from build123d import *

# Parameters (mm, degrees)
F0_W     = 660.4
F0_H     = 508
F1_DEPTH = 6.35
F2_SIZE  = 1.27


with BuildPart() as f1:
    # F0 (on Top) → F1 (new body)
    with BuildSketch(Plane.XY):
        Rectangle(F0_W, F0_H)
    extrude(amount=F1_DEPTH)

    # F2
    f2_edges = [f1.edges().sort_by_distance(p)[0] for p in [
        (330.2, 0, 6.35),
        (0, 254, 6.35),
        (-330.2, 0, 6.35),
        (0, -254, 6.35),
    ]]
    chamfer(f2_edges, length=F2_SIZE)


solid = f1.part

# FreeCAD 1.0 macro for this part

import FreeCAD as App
import Part
import Sketcher
Q = App.Units.Quantity


def edges_at(feature, points):
    """Names of the edges that pass closest to the given points."""
    edges = feature.Shape.Edges
    near = lambda p: min(range(len(edges)), key=lambda i: edges[i].distToShape(Part.Vertex(*p))[0])
    return sorted({f"Edge{near(p) + 1}" for p in points})

doc = App.newDocument("Part")
body = doc.addObject("PartDesign::Body", "Body")

# Sketch on XY plane
sketch1 = doc.addObject("Sketcher::SketchObject", "Sketch")
body.addObject(sketch1)
sketch1.AttachmentSupport = (doc.XY_Plane, [""])
sketch1.MapMode = "FlatFace"
sketch1.addGeometry(Part.LineSegment(App.Vector(-330, 254, 0), App.Vector(-330, -254, 0)), False)
sketch1.addGeometry(Part.LineSegment(App.Vector(-330, -254, 0), App.Vector(330, -254, 0)), False)
sketch1.addGeometry(Part.LineSegment(App.Vector(330, -254, 0), App.Vector(330, 254, 0)), False)
sketch1.addGeometry(Part.LineSegment(App.Vector(330, 254, 0), App.Vector(-330, 254, 0)), False)
sketch1.addConstraint(Sketcher.Constraint("Coincident", 0, 2, 1, 1))
sketch1.addConstraint(Sketcher.Constraint("Coincident", 1, 2, 2, 1))
sketch1.addConstraint(Sketcher.Constraint("Coincident", 2, 2, 3, 1))
sketch1.addConstraint(Sketcher.Constraint("Coincident", 3, 2, 0, 1))
sketch1.addConstraint(Sketcher.Constraint("Vertical", 0))
sketch1.addConstraint(Sketcher.Constraint("Horizontal", 1))
sketch1.addConstraint(Sketcher.Constraint("Vertical", 2))
sketch1.addConstraint(Sketcher.Constraint("Horizontal", 3))
sketch1.addConstraint(Sketcher.Constraint("Symmetric", 0, 2, 2, 2, -1, 1))
sketch1.addConstraint(Sketcher.Constraint("DistanceX", 1, 1, 1, 2, Q("26 in")))
sketch1.addConstraint(Sketcher.Constraint("DistanceY", 0, 2, 0, 1, Q("20 in")))
pad1 = doc.addObject("PartDesign::Pad", "Pad")
body.addObject(pad1)
pad1.Profile = sketch1
pad1.Length = Q("0.25 in")
doc.recompute()

chamfer = doc.addObject("PartDesign::Chamfer", "Chamfer")
body.addObject(chamfer)
chamfer.Base = (pad1, edges_at(pad1, [
    (330.2, 0, 6.35),
    (0, 254, 6.35),
    (-330.2, 0, 6.35),
    (0, -254, 6.35),
]))
chamfer.Size = Q("0.05 in")

doc.recompute()
